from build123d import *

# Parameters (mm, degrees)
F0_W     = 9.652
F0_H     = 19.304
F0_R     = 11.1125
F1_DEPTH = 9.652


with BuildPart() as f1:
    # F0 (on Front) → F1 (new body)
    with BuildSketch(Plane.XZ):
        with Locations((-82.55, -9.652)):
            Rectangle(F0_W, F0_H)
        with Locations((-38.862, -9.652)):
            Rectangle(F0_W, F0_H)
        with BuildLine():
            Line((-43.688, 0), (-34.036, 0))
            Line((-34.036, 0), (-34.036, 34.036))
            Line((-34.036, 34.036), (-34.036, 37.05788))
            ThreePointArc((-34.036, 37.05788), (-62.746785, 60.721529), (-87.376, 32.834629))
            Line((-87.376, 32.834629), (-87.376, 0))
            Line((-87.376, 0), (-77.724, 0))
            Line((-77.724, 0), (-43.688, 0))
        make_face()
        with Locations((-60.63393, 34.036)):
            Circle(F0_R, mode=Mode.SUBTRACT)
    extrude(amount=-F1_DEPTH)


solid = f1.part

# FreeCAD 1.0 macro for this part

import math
import FreeCAD as App
import Part
import Sketcher

V = App.Vector
Q = App.Units.Quantity

doc = App.newDocument("Part")
body = doc.addObject("PartDesign::Body", "Body")

sketch1 = body.newObject("Sketcher::SketchObject", "Sketch")
sketch1.AttachmentSupport = (doc.getObject("XZ_Plane"), [""])
sketch1.MapMode = "FlatFace"
sketch1.addGeometry(Part.LineSegment(V(-87, -19, 0), V(-78, -19, 0)), False)
sketch1.addGeometry(Part.LineSegment(V(-78, -19, 0), V(-78, 0, 0)), False)
sketch1.addGeometry(Part.LineSegment(V(-78, 0, 0), V(-44, 0, 0)), False)
sketch1.addGeometry(Part.LineSegment(V(-44, 0, 0), V(-44, -19, 0)), False)
sketch1.addGeometry(Part.LineSegment(V(-44, -19, 0), V(-34, -19, 0)), False)
sketch1.addGeometry(Part.LineSegment(V(-34, -19, 0), V(-34, 37, 0)), False)
sketch1.addGeometry(Part.ArcOfCircle(Part.Circle(V(-61, 34, 0), V(0, 0, 1), 27), math.radians(6), math.radians(183)), False)
sketch1.addGeometry(Part.LineSegment(V(-87, 33, 0), V(-87, -19, 0)), False)
sketch1.addGeometry(Part.Circle(V(-61, 34, 0), V(0, 0, 1), 11), False)
sketch1.addConstraint(Sketcher.Constraint("Coincident", 0, 2, 1, 1))
sketch1.addConstraint(Sketcher.Constraint("Coincident", 1, 2, 2, 1))
sketch1.addConstraint(Sketcher.Constraint("Coincident", 2, 2, 3, 1))
sketch1.addConstraint(Sketcher.Constraint("Coincident", 3, 2, 4, 1))
sketch1.addConstraint(Sketcher.Constraint("Coincident", 4, 2, 5, 1))
sketch1.addConstraint(Sketcher.Constraint("Coincident", 5, 2, 6, 1))
sketch1.addConstraint(Sketcher.Constraint("Coincident", 6, 2, 7, 1))
sketch1.addConstraint(Sketcher.Constraint("Coincident", 7, 2, 0, 1))
sketch1.addConstraint(Sketcher.Constraint("Horizontal", 0))
sketch1.addConstraint(Sketcher.Constraint("Vertical", 1))
sketch1.addConstraint(Sketcher.Constraint("Horizontal", 2))
sketch1.addConstraint(Sketcher.Constraint("Vertical", 3))
sketch1.addConstraint(Sketcher.Constraint("Horizontal", 4))
sketch1.addConstraint(Sketcher.Constraint("Vertical", 5))
sketch1.addConstraint(Sketcher.Constraint("Vertical", 7))
sketch1.addConstraint(Sketcher.Constraint("Coincident", 8, 3, 6, 3))
sketch1.addConstraint(Sketcher.Constraint("PointOnObject", 1, 2, -1))
sketch1.addConstraint(Sketcher.Constraint("Horizontal", 0, 2, 3, 2))
sketch1.addConstraint(Sketcher.Constraint("Equal", 0, 4))
sketch1.addConstraint(Sketcher.Constraint("Diameter", 8, Q("0.875 in")))
sketch1.addConstraint(Sketcher.Constraint("DistanceX", 0, 1, 0, 2, Q("0.38 in")))
sketch1.addConstraint(Sketcher.Constraint("DistanceX", 2, 1, 2, 2, Q("1.34 in")))
sketch1.addConstraint(Sketcher.Constraint("DistanceY", 1, 1, 1, 2, Q("0.76 in")))
sketch1.addConstraint(Sketcher.Constraint("DistanceY", 0, 2, 8, 3, Q("2.1 in")))
sketch1.addConstraint(Sketcher.Constraint("DistanceX", 0, 2, -1, 1, Q("3.06 in")))
sketch1.addConstraint(Sketcher.Constraint("Radius", 6, 26.769042))
sketch1.addConstraint(Sketcher.Constraint("DistanceY", 5, 1, 5, 2, 56.36188))
pad1 = body.newObject("PartDesign::Pad", "Pad")
pad1.Profile = sketch1
pad1.Length = Q("0.38 in")
pad1.Reversed = True

doc.recompute()
